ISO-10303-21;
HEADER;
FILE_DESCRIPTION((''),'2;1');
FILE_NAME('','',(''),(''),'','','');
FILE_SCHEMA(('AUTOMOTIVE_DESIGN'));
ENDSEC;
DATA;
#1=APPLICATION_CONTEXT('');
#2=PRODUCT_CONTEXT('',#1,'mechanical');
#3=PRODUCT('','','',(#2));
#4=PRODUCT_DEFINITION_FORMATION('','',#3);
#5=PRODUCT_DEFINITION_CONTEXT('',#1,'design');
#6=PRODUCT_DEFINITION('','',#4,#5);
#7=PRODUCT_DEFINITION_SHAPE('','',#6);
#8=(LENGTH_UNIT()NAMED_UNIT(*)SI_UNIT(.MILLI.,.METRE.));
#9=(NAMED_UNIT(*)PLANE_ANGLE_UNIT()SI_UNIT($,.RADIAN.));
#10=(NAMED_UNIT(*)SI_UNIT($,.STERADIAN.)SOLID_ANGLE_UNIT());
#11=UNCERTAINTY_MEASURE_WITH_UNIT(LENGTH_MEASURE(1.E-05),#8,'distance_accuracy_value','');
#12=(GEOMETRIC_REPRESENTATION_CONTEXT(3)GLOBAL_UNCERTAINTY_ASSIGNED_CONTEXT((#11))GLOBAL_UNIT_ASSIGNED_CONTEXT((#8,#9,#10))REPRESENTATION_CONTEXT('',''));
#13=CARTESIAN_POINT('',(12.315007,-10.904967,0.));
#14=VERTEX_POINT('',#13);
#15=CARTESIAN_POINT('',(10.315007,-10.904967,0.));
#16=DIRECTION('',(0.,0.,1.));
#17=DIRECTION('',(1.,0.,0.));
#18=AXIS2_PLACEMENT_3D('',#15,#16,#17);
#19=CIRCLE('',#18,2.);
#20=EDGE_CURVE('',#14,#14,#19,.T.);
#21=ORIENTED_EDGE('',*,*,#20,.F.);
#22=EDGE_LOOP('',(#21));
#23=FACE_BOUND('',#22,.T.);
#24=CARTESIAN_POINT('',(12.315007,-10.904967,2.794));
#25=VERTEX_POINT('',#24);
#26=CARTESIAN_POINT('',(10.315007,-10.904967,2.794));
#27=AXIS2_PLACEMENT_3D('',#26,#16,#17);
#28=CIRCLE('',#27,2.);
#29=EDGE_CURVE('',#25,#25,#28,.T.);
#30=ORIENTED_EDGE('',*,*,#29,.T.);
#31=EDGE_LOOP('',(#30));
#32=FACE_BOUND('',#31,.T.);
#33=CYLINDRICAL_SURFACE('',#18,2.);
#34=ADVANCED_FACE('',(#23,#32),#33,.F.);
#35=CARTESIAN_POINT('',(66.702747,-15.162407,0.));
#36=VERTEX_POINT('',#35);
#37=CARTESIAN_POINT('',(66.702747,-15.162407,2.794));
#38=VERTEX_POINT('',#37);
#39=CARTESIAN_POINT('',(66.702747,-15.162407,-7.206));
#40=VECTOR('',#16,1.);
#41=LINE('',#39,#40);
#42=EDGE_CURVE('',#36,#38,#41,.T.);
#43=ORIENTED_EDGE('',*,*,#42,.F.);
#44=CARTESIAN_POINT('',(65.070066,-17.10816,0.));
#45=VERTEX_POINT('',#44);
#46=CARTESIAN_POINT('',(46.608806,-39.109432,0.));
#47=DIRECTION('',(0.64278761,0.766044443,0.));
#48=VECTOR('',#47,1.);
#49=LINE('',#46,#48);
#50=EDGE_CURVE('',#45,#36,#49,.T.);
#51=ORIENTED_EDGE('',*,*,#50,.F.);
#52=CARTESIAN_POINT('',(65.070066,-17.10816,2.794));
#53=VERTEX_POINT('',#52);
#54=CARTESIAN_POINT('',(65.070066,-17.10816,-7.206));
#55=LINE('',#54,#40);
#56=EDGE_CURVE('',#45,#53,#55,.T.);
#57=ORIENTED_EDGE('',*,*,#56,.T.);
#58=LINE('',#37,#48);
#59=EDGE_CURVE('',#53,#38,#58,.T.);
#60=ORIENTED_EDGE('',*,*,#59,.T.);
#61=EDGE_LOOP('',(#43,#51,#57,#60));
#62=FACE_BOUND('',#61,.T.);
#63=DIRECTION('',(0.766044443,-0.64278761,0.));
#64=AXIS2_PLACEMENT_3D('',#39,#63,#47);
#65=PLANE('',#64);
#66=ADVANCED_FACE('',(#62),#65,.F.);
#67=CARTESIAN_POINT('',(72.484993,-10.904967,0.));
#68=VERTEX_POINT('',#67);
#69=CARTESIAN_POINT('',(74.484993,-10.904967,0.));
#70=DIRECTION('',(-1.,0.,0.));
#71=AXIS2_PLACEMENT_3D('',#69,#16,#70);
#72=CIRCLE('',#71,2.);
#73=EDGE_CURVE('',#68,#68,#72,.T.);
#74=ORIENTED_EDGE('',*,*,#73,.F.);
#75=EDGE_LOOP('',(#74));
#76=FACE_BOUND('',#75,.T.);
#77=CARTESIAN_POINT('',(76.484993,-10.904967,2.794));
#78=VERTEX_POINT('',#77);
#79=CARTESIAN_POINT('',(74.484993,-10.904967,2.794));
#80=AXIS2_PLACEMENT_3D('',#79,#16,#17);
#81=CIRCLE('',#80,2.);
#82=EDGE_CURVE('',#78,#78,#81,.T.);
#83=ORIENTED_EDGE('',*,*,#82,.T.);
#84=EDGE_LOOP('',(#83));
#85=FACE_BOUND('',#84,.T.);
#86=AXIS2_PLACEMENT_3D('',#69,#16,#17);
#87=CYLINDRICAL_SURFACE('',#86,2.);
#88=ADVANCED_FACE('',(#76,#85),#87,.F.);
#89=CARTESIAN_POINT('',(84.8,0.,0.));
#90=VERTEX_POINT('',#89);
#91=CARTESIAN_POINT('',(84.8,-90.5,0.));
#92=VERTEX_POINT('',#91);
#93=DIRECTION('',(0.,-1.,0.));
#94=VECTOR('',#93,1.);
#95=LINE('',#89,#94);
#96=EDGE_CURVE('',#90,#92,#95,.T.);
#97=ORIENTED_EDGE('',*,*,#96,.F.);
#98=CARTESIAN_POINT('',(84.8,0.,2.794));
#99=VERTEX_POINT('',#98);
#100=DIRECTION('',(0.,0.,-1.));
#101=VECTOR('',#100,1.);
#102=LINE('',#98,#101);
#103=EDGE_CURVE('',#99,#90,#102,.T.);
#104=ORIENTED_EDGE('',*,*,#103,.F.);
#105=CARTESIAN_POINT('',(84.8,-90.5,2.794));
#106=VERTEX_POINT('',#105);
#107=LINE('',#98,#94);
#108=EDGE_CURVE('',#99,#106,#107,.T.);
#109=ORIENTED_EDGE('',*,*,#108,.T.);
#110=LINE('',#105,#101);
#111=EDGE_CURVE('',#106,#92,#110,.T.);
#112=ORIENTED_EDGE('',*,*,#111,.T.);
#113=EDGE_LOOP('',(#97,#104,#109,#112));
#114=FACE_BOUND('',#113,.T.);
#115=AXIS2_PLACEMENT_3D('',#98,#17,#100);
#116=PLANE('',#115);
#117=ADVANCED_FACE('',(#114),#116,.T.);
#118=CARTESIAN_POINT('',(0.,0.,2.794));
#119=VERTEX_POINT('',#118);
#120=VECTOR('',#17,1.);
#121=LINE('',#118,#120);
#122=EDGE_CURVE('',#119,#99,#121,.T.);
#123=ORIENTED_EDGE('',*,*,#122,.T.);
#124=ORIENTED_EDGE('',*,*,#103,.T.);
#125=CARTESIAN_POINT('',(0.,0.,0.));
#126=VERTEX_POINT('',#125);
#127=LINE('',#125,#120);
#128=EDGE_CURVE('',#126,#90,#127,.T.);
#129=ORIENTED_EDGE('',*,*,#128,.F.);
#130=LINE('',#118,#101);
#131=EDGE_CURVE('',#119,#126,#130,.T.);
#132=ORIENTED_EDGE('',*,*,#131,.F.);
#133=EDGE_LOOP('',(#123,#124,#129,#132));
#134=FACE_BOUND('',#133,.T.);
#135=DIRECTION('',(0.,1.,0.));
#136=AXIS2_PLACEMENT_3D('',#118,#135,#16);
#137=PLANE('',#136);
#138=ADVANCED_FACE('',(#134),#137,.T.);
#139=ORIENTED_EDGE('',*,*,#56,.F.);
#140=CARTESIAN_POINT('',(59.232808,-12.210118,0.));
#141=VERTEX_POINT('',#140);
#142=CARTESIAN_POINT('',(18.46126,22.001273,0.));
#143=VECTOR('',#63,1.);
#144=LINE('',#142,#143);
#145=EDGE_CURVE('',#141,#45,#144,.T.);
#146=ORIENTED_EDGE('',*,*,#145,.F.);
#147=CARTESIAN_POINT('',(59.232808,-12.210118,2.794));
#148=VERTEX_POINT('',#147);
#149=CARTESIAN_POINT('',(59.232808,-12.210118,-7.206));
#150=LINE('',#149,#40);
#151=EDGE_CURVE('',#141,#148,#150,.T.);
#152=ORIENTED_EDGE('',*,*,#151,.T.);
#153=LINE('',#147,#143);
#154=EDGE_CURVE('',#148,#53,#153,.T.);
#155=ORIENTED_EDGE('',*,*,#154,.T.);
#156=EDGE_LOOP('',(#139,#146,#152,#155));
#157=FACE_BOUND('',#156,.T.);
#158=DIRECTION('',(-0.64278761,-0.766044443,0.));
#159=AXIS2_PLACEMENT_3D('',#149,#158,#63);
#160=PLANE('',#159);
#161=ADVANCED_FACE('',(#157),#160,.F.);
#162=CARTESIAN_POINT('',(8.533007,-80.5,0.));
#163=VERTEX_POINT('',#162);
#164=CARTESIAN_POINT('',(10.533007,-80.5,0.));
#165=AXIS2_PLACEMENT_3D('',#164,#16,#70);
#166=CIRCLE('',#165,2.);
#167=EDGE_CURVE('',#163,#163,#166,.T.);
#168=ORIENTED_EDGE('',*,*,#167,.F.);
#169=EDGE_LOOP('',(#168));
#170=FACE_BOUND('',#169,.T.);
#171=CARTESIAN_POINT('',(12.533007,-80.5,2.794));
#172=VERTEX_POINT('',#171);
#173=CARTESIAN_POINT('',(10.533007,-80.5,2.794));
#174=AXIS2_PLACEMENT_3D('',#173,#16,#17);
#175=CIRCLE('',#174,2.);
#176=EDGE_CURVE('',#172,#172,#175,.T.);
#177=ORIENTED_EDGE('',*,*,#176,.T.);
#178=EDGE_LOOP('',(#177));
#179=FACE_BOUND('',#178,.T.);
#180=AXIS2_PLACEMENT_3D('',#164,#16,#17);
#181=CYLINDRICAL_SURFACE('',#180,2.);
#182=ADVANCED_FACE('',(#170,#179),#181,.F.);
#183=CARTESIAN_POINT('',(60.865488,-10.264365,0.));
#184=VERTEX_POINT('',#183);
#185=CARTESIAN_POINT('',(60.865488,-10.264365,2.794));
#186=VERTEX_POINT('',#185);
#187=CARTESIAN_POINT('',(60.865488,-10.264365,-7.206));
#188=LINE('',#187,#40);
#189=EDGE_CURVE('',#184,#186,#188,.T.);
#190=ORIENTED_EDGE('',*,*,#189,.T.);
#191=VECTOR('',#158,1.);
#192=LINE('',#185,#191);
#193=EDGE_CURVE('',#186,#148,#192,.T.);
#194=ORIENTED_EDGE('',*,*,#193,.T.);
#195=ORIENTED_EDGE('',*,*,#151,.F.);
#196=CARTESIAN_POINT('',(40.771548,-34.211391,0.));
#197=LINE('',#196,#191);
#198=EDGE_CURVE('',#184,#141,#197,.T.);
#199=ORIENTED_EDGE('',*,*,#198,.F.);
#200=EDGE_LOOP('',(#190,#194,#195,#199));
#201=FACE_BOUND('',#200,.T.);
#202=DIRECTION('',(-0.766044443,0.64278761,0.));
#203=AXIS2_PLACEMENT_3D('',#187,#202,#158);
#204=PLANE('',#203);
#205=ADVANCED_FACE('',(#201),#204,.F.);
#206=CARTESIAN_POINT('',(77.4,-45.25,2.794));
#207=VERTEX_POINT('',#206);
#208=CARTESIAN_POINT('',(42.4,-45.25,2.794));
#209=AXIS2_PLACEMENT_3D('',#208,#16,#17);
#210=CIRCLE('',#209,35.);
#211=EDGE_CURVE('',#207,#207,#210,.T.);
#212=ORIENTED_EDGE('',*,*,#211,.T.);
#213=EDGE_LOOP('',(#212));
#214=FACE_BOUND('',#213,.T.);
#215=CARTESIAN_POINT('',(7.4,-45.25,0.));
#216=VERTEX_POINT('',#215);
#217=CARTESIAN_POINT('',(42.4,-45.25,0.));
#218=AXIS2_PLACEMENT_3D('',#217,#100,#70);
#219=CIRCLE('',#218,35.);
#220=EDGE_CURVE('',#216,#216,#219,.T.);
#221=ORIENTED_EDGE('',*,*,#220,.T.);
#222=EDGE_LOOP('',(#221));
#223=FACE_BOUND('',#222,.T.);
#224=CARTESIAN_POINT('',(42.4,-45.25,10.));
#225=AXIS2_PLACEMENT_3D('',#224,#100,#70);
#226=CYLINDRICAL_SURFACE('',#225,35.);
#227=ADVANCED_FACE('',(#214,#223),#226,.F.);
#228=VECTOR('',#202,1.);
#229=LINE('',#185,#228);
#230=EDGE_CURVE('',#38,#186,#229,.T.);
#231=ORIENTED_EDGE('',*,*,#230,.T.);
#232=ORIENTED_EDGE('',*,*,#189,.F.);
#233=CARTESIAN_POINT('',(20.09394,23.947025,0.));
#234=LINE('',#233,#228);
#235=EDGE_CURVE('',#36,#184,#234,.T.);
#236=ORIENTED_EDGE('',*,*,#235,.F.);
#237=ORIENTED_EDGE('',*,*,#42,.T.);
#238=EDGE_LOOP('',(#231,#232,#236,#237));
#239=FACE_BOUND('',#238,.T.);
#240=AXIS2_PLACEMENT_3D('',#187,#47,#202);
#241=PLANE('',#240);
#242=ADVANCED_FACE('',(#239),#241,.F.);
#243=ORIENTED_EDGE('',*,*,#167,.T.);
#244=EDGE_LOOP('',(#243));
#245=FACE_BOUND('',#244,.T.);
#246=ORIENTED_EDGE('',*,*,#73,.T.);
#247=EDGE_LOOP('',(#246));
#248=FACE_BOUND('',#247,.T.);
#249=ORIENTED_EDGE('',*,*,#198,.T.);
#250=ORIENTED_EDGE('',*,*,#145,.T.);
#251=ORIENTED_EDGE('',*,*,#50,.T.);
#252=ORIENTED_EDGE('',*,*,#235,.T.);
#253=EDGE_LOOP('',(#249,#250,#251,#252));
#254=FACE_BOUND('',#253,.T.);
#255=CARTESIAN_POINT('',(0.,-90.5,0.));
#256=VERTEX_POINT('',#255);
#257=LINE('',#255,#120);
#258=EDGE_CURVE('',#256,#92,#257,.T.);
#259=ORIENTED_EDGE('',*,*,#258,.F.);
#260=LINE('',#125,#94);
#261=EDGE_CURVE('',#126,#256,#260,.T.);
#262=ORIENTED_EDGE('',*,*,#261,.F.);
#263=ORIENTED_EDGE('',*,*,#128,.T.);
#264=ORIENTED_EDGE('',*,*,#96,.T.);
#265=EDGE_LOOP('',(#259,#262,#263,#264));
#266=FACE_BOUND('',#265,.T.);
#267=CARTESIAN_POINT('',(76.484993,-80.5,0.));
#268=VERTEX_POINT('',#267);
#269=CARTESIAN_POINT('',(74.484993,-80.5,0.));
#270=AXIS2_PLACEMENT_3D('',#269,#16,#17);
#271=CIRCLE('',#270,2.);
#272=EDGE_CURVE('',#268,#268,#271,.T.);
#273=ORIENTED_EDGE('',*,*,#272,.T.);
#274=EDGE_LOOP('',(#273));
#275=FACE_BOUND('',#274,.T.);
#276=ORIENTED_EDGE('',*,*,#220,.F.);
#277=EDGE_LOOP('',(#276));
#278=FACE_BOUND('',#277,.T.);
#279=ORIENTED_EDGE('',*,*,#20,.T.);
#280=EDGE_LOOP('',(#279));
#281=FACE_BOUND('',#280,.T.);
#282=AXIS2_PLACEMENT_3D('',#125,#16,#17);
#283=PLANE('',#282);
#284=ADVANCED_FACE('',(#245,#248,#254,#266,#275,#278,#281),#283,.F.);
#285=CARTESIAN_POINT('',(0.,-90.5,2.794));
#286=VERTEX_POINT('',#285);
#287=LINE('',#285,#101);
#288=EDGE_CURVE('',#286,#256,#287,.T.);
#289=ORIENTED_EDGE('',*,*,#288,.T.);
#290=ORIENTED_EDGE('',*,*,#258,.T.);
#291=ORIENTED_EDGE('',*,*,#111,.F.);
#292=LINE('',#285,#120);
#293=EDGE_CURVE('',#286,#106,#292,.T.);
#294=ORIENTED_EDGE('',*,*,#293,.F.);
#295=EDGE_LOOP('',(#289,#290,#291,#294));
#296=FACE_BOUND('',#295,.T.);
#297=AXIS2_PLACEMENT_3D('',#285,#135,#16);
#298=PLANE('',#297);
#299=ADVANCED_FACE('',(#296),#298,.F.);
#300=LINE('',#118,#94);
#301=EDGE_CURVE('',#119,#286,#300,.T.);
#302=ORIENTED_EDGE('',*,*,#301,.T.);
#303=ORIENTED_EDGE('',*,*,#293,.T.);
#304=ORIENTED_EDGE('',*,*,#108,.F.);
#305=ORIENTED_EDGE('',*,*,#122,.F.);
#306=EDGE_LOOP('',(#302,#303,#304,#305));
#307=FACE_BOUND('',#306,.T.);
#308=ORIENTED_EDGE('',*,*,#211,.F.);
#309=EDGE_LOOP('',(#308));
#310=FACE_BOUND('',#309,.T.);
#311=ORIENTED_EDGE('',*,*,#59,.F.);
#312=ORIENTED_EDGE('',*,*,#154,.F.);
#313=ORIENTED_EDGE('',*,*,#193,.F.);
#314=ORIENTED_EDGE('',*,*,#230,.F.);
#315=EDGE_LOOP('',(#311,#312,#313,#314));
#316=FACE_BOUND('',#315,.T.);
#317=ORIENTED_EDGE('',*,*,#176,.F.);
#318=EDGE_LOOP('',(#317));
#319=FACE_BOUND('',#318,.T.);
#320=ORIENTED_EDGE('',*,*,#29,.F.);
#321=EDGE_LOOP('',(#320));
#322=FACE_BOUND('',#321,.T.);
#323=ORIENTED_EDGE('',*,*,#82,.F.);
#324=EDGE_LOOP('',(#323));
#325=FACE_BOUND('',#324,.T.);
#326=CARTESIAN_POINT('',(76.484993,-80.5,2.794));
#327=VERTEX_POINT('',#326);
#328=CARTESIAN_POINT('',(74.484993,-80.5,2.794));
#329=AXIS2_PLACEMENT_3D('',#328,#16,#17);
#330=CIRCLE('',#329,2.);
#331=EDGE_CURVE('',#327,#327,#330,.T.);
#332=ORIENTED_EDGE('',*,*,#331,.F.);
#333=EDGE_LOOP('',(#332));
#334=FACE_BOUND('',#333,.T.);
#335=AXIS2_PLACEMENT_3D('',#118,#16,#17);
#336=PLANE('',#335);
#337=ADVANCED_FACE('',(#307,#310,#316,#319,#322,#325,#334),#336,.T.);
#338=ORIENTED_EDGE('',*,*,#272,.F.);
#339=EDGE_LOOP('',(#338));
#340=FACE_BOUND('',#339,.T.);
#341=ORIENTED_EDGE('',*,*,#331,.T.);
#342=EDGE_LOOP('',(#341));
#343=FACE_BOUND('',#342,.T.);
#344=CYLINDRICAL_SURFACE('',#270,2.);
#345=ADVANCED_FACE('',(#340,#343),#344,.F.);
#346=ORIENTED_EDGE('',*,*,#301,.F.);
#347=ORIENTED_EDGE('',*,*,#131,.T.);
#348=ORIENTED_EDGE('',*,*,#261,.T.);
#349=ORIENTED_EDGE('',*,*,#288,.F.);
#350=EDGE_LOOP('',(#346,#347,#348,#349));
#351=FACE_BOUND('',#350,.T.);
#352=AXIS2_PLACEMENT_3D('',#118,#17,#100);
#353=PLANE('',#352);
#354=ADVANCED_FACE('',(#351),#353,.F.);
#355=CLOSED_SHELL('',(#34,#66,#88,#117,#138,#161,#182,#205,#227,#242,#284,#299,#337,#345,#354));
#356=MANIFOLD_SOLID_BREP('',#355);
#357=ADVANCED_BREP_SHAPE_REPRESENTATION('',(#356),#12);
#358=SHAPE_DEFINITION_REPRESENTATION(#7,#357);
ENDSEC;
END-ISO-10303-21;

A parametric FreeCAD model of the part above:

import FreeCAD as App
import Part
import Sketcher

V = App.Vector
Q = App.Units.Quantity

doc = App.newDocument("Part")
params = doc.addObject("Spreadsheet::Sheet", "Params")
for row, (alias, value) in enumerate([
    ("sketch1_width", "84.8 mm"),
    ("sketch1_height", "90.5 mm"),
    ("pad1_length", "2.794 mm"),
    ("sketch2_diameter", "4 mm"),
    ("sketch4_diameter", "70 mm"),
    ("pocket3_length", "10 mm"),
    ("sketch5_length", "7.62 mm"),
    ("sketch5_length2", "2.54 mm"),
    ("pocket4_length", "10 mm"),
], start=1):
    params.set(f"A{row}", alias)
    params.set(f"B{row}", "=" + value)
    params.setAlias(f"B{row}", alias)

body = doc.addObject("PartDesign::Body", "Body")

# Sketch on XY plane
sketch1 = doc.addObject("Sketcher::SketchObject", "Sketch")
body.addObject(sketch1)
sketch1.AttachmentSupport = (doc.XY_Plane, [""])
sketch1.MapMode = "FlatFace"
sketch1.addGeometry([
    Part.LineSegment(V(0, 0, 0), V(0, -90, 0)),
    Part.LineSegment(V(0, -90, 0), V(85, -90, 0)),
    Part.LineSegment(V(85, -90, 0), V(85, 0, 0)),
    Part.LineSegment(V(85, 0, 0), V(0, 0, 0)),
], False)
sketch1.addConstraint([
    Sketcher.Constraint("Coincident", 0, 2, 1, 1),
    Sketcher.Constraint("Coincident", 1, 2, 2, 1),
    Sketcher.Constraint("Coincident", 2, 2, 3, 1),
    Sketcher.Constraint("Coincident", 3, 2, 0, 1),
    Sketcher.Constraint("Vertical", 0),
    Sketcher.Constraint("Horizontal", 1),
    Sketcher.Constraint("Vertical", 2),
    Sketcher.Constraint("Horizontal", 3),
    Sketcher.Constraint("Coincident", 3, 2, -1, 1),
    Sketcher.Constraint("DistanceX", 1, 1, 1, 2, Q("84.8 mm")),
    Sketcher.Constraint("DistanceY", 0, 2, 0, 1, Q("90.5 mm")),
])
sketch1.setExpression("Constraints[9]", "Params.sketch1_width")
sketch1.setExpression("Constraints[10]", "Params.sketch1_height")
pad1 = doc.addObject("PartDesign::Pad", "Pad")
body.addObject(pad1)
pad1.Profile = sketch1
pad1.setExpression("Length", "Params.pad1_length")

# Sketch on XY plane
sketch2 = doc.addObject("Sketcher::SketchObject", "Sketch001")
body.addObject(sketch2)
sketch2.AttachmentSupport = (doc.XY_Plane, [""])
sketch2.MapMode = "FlatFace"
sketch2.AttachmentOffset = App.Placement(V(0, 0, 2.794), App.Rotation())
sketch2.addGeometry([
    Part.Circle(V(10.3, -10.9, 0), V(0, 0, 1), 2),
    Part.Circle(V(74.5, -10.9, 0), V(0, 0, 1), 2),
    Part.Circle(V(74.5, -80.5, 0), V(0, 0, 1), 2),
    Part.Circle(V(10.5, -80.5, 0), V(0, 0, 1), 2),
], False)
sketch2.addConstraint([
    Sketcher.Constraint("Equal", 0, 1),
    Sketcher.Constraint("Equal", 1, 2),
    Sketcher.Constraint("Equal", 2, 3),
    Sketcher.Constraint("Horizontal", 0, 3, 1, 3),
    Sketcher.Constraint("Horizontal", 2, 3, 3, 3),
    Sketcher.Constraint("Vertical", 1, 3, 2, 3),
    Sketcher.Constraint("Diameter", 0, Q("4 mm")),
    Sketcher.Constraint("DistanceY", 2, 3, -1, 1, Q("80.5 mm")),
    Sketcher.Constraint("DistanceX", 0, 3, 3, 3, Q("0.218 mm")),
    Sketcher.Constraint("DistanceX", -1, 1, 0, 3, Q("10.315007 mm")),
    Sketcher.Constraint("DistanceY", 0, 3, -1, 1, Q("10.904967 mm")),
    Sketcher.Constraint("DistanceX", -1, 1, 1, 3, Q("74.484993 mm")),
])
sketch2.setExpression("Constraints[6]", "Params.sketch2_diameter")
pocket1 = doc.addObject("PartDesign::Pocket", "Pocket")
body.addObject(pocket1)
pocket1.Profile = sketch2
pocket1.Type = "ThroughAll"
pocket1.Midplane = True

# Sketch on XY plane
sketch3 = doc.addObject("Sketcher::SketchObject", "Sketch002")
body.addObject(sketch3)
sketch3.AttachmentSupport = (doc.XY_Plane, [""])
sketch3.MapMode = "FlatFace"
sketch3.addGeometry(Part.Circle(V(42.4, -45.2, 0), V(0, 0, 1), 1.7), False)
sketch3.addConstraint([
    Sketcher.Constraint("Diameter", 0, Q("3.429 mm")),
    Sketcher.Constraint("DistanceX", -1, 1, 0, 3, Q("42.4 mm")),
    Sketcher.Constraint("DistanceY", 0, 3, -1, 1, Q("45.25 mm")),
])
pocket2 = doc.addObject("PartDesign::Pocket", "Pocket001")
body.addObject(pocket2)
pocket2.Profile = sketch3
pocket2.Type = "ThroughAll"
pocket2.Midplane = True

# Sketch on XY plane
sketch4 = doc.addObject("Sketcher::SketchObject", "Sketch003")
body.addObject(sketch4)
sketch4.AttachmentSupport = (doc.XY_Plane, [""])
sketch4.MapMode = "FlatFace"
sketch4.addGeometry(Part.Circle(V(42, -45, 0), V(0, 0, 1), 35), False)
sketch4.addConstraint([
    Sketcher.Constraint("Diameter", 0, Q("70 mm")),
    Sketcher.Constraint("DistanceX", -1, 1, 0, 3, Q("42.4 mm")),
    Sketcher.Constraint("DistanceY", 0, 3, -1, 1, Q("45.25 mm")),
])
sketch4.setExpression("Constraints[0]", "Params.sketch4_diameter")
pocket3 = doc.addObject("PartDesign::Pocket", "Pocket002")
body.addObject(pocket3)
pocket3.Profile = sketch4
pocket3.setExpression("Length", "Params.pocket3_length")
pocket3.Reversed = True

# Sketch on XY plane
sketch5 = doc.addObject("Sketcher::SketchObject", "Sketch004")
body.addObject(sketch5)
sketch5.AttachmentSupport = (doc.XY_Plane, [""])
sketch5.MapMode = "FlatFace"
sketch5.AttachmentOffset = App.Placement(V(0, 0, 2.794), App.Rotation())
sketch5.addGeometry([
    Part.LineSegment(V(66.7, -15.2, 0), V(60.9, -10.3, 0)),
    Part.LineSegment(V(60.9, -10.3, 0), V(59.2, -12.2, 0)),
    Part.LineSegment(V(59.2, -12.2, 0), V(65.1, -17.1, 0)),
    Part.LineSegment(V(65.1, -17.1, 0), V(66.7, -15.2, 0)),
], False)
sketch5.addConstraint([
    Sketcher.Constraint("Coincident", 0, 2, 1, 1),
    Sketcher.Constraint("Coincident", 1, 2, 2, 1),
    Sketcher.Constraint("Coincident", 2, 2, 3, 1),
    Sketcher.Constraint("Coincident", 3, 2, 0, 1),
    Sketcher.Constraint("Perpendicular", 0, 1),
    Sketcher.Constraint("Perpendicular", 1, 2),
    Sketcher.Constraint("Perpendicular", 2, 3),
    Sketcher.Constraint("Angle", 0, Q("140 deg")),
    Sketcher.Constraint("Distance", 0, Q("7.62 mm")),
    Sketcher.Constraint("Distance", 1, Q("2.54 mm")),
    Sketcher.Constraint("DistanceX", -1, 1, 0, 2, Q("60.865488 mm")),
    Sketcher.Constraint("DistanceY", 1, 2, -1, 1, Q("12.210118 mm")),
])
sketch5.setExpression("Constraints[8]", "Params.sketch5_length")
sketch5.setExpression("Constraints[9]", "Params.sketch5_length2")
pocket4 = doc.addObject("PartDesign::Pocket", "Pocket003")
body.addObject(pocket4)
pocket4.Profile = sketch5
pocket4.setExpression("Length", "Params.pocket4_length")

doc.recompute()
